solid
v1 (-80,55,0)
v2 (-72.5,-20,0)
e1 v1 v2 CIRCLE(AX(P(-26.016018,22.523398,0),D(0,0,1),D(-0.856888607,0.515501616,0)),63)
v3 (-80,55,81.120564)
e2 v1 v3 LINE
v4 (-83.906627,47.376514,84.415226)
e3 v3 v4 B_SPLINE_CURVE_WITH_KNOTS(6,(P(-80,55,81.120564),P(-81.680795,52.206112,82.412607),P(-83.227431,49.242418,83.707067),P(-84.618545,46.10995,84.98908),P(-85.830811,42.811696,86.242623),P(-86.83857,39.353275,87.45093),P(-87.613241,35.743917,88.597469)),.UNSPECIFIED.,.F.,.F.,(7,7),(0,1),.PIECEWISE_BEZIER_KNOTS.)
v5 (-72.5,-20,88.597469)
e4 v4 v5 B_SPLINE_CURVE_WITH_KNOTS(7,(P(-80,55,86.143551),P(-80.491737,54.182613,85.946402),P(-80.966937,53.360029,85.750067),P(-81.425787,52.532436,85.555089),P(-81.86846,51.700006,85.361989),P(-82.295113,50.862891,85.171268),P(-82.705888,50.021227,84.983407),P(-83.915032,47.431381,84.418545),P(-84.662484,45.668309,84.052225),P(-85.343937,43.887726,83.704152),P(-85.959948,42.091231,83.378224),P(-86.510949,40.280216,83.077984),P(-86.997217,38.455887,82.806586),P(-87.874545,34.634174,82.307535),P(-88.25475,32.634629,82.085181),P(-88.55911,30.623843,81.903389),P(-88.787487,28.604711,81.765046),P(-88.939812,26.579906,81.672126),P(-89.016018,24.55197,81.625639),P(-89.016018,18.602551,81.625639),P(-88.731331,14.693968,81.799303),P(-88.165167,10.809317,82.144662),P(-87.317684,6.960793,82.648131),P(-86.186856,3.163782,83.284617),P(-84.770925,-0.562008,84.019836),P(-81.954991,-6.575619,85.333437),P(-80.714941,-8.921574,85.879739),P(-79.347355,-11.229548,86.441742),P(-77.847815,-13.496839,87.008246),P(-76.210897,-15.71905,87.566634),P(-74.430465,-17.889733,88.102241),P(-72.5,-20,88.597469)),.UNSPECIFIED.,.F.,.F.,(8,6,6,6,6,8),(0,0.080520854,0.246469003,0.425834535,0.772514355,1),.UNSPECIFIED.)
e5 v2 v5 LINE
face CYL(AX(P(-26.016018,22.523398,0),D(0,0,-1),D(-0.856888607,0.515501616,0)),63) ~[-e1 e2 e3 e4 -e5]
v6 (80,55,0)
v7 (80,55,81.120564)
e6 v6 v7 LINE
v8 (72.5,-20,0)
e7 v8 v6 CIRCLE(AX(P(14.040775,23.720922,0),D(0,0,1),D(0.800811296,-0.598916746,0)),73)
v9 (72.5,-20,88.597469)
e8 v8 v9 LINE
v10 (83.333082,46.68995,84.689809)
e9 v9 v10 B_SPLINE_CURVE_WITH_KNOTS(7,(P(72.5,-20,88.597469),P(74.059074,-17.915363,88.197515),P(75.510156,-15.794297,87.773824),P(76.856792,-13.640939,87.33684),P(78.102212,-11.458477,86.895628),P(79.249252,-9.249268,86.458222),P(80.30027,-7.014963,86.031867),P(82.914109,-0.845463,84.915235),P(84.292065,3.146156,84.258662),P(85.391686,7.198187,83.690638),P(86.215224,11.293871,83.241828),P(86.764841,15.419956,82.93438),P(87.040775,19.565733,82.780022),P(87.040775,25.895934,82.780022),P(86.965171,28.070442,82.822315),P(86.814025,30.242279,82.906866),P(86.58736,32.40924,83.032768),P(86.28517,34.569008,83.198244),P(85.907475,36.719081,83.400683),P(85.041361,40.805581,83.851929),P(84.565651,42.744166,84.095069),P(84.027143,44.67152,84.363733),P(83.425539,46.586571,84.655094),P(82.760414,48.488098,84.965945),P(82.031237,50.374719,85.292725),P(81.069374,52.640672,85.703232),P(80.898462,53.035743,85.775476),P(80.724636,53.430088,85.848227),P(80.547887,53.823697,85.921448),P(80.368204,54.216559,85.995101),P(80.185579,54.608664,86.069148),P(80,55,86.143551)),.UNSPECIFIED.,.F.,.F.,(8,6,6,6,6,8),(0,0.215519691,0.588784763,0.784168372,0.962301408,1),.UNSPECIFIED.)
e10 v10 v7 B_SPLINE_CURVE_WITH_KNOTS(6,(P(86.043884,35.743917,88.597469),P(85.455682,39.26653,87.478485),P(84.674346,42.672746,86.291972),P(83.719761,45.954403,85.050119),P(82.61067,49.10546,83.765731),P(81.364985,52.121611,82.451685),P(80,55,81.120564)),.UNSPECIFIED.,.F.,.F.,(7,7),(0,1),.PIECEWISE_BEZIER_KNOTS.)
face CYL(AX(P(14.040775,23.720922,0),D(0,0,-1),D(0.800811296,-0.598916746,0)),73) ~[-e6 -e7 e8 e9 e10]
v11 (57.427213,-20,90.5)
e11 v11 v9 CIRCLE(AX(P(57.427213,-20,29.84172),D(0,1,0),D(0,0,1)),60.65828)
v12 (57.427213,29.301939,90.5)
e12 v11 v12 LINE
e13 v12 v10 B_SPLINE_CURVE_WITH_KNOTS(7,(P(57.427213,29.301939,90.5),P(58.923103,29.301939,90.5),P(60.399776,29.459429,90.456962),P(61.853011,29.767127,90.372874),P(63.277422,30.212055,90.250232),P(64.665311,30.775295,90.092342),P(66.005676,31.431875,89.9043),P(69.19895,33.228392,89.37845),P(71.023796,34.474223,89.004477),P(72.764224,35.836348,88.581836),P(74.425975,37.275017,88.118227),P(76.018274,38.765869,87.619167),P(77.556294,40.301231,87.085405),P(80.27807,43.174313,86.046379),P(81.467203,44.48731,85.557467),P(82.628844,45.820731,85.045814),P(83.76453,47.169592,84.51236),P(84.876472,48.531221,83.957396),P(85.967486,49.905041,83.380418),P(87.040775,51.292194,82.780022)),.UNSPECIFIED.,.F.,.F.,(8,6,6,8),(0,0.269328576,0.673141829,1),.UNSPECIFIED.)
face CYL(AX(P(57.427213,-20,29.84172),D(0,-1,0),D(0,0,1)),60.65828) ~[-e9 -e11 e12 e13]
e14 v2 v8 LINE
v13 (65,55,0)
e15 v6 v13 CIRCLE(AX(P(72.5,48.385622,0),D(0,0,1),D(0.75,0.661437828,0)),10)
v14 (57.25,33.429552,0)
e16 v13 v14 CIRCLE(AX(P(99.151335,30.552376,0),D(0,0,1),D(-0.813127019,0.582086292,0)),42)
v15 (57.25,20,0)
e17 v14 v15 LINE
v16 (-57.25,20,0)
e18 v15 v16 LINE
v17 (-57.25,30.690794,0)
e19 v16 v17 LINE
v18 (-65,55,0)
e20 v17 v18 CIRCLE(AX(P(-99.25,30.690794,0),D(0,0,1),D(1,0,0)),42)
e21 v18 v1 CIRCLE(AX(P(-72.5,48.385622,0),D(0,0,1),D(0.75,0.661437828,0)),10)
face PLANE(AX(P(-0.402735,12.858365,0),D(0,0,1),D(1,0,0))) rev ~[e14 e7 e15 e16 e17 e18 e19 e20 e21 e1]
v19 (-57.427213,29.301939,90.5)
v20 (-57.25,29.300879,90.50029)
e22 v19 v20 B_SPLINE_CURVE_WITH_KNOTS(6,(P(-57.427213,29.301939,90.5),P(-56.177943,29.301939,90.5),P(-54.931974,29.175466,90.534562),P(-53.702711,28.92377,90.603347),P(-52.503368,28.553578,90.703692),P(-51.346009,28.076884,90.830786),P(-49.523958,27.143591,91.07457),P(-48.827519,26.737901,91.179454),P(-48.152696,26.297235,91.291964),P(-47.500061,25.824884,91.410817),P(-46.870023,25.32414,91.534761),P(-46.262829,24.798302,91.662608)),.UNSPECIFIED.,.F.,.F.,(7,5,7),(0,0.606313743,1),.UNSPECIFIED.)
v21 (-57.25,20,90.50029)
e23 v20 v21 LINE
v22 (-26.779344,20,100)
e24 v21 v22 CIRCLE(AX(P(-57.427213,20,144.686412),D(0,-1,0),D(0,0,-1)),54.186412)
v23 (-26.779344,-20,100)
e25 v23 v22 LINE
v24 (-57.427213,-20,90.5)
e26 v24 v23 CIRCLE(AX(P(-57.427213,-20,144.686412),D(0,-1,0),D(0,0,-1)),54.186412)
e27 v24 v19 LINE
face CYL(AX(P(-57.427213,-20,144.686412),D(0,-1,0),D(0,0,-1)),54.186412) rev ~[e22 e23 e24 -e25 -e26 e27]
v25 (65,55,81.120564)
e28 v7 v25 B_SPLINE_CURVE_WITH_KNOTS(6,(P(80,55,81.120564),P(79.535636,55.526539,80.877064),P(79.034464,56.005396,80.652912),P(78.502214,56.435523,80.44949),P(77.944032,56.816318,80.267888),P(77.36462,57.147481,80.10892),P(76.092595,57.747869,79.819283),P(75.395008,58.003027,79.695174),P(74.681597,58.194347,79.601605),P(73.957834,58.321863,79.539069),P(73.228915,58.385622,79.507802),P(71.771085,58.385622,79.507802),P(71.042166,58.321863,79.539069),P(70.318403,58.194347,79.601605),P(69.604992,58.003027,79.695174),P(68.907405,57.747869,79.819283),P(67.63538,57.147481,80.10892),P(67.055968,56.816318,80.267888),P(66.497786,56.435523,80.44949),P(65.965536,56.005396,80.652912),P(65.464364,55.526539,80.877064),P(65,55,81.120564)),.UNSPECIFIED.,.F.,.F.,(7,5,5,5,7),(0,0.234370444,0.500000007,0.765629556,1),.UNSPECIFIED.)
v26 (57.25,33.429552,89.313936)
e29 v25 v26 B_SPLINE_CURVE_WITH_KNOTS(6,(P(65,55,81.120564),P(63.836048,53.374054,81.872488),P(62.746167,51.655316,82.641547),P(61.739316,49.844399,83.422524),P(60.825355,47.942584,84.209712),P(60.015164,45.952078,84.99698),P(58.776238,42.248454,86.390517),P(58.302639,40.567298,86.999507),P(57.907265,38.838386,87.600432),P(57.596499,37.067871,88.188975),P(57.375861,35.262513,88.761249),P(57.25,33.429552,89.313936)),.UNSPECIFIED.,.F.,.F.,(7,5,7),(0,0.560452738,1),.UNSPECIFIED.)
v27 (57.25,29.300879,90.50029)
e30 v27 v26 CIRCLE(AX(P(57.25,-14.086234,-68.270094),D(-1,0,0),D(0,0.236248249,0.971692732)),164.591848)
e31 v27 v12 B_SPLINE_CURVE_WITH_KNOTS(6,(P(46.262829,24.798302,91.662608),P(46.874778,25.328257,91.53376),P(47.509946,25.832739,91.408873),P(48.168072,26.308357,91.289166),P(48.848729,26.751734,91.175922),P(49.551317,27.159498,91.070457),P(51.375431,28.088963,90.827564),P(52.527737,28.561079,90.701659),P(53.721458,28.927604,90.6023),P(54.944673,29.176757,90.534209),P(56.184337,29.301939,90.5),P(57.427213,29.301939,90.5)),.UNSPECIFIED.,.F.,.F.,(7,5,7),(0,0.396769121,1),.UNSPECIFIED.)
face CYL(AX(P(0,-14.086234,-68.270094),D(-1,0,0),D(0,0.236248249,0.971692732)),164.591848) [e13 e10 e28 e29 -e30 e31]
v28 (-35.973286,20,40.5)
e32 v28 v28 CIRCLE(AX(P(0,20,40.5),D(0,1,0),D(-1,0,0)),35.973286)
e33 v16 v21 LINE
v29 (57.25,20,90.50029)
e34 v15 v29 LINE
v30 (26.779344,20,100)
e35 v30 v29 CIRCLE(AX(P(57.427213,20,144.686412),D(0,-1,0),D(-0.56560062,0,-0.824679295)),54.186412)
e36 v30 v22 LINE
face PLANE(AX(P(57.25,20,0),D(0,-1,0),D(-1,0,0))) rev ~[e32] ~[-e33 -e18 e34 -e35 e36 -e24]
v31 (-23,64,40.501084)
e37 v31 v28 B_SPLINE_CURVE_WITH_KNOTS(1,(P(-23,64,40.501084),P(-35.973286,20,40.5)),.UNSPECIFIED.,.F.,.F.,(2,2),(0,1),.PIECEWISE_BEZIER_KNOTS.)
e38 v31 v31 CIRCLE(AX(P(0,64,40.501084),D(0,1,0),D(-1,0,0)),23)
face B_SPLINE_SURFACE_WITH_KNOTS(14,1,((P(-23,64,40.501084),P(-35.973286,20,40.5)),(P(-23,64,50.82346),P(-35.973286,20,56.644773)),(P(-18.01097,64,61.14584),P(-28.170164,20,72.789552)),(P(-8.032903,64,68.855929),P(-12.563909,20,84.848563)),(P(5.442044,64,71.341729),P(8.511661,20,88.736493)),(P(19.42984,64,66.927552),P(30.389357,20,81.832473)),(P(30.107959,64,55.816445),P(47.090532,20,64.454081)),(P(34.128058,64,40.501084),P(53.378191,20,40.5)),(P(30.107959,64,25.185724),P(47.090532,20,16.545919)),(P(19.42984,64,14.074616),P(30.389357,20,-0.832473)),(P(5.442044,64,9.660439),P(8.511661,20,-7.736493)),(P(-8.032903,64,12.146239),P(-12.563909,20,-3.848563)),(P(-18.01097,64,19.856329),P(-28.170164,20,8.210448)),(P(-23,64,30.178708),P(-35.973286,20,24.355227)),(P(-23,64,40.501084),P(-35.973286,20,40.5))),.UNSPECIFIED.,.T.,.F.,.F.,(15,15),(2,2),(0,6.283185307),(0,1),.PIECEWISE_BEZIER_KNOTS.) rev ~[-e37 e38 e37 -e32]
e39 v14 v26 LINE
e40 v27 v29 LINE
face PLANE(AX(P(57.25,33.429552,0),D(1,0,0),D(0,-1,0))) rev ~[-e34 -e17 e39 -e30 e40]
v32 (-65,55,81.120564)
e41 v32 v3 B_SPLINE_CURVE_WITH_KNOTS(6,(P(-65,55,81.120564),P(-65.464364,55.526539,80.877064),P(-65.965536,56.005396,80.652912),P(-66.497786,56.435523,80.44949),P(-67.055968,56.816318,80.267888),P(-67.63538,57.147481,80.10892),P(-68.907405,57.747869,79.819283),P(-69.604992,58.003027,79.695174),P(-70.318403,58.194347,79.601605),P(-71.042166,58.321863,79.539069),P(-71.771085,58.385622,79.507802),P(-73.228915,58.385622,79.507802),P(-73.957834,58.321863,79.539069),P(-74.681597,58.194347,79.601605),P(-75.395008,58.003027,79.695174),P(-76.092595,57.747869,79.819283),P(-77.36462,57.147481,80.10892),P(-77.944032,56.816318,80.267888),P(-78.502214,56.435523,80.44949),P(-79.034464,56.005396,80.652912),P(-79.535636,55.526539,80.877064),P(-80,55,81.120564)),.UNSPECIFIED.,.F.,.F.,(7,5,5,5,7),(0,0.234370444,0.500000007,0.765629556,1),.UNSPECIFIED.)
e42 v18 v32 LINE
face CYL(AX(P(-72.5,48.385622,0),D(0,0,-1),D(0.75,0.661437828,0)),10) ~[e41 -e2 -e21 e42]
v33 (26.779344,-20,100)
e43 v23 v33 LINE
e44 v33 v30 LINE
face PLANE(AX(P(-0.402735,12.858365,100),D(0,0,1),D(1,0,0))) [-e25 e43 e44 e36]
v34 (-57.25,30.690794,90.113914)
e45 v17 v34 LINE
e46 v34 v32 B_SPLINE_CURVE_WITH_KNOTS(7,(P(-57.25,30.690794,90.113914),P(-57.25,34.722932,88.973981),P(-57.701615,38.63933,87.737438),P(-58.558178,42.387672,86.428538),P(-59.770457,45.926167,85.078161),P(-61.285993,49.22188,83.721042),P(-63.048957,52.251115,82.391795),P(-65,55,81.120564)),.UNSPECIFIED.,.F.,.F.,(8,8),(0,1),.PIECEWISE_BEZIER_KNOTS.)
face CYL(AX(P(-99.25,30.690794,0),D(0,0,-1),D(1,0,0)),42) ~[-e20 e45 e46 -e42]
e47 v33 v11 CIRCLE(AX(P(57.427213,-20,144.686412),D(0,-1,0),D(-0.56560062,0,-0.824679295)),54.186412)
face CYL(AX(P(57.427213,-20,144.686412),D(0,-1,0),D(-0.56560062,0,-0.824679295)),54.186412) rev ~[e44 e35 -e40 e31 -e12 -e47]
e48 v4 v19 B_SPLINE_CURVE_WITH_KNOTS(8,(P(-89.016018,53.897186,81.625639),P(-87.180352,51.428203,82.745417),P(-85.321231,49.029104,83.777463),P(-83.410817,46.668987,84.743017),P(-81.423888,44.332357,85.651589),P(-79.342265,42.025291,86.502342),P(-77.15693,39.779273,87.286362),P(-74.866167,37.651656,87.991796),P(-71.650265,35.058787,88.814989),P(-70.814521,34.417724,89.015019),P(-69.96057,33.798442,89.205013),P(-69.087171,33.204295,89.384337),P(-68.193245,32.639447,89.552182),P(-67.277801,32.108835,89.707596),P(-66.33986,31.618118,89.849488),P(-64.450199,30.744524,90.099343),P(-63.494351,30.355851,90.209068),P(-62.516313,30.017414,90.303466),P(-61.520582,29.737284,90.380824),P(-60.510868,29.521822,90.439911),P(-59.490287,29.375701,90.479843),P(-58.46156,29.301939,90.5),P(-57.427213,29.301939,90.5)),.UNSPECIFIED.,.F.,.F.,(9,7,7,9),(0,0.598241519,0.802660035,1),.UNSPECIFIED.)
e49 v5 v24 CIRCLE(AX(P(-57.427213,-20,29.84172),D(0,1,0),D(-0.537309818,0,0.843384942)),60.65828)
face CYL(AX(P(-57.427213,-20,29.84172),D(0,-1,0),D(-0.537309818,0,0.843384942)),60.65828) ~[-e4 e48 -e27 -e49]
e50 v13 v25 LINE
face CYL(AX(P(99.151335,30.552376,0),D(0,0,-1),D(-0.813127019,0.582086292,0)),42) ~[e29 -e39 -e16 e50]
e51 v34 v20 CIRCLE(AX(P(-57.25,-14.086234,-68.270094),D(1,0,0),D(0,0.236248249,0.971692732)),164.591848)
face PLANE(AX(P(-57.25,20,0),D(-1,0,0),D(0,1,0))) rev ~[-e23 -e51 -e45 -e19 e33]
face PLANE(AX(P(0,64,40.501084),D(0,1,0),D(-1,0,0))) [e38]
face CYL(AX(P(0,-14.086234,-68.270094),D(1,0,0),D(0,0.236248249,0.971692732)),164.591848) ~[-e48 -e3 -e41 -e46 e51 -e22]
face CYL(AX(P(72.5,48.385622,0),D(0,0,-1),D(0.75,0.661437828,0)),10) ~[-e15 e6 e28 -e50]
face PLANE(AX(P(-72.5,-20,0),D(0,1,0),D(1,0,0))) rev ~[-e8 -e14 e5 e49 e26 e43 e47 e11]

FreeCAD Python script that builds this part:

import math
import FreeCAD as App
import Part
import Sketcher

doc = App.newDocument("Part")
body = doc.addObject("PartDesign::Body", "Body")

# Sketch on XY plane
sketch1 = body.newObject("Sketcher::SketchObject", "Sketch")
sketch1.AttachmentSupport = (doc.getObject("XY_Plane"), [""])
sketch1.MapMode = "FlatFace"
sketch1.addGeometry([
    Part.LineSegment(App.Vector(-72, -20, 0), App.Vector(72, -20, 0)),  # 0
    Part.ArcOfCircle(Part.Circle(App.Vector(14, 24, 0), App.Vector(0, 0, 1), 73), math.radians(-37), math.radians(25)),  # 1
    Part.ArcOfCircle(Part.Circle(App.Vector(72, 48, 0), App.Vector(0, 0, 1), 10), math.radians(41), math.radians(139)),  # 2
    Part.ArcOfCircle(Part.Circle(App.Vector(99, 31, 0), App.Vector(0, 0, 1), 42), math.radians(144), math.radians(176)),  # 3
    Part.LineSegment(App.Vector(57, 33, 0), App.Vector(57, 20, 0)),  # 4
    Part.LineSegment(App.Vector(57, 20, 0), App.Vector(-57, 20, 0)),  # 5
    Part.LineSegment(App.Vector(-57, 20, 0), App.Vector(-57, 31, 0)),  # 6
    Part.ArcOfCircle(Part.Circle(App.Vector(-99, 31, 0), App.Vector(0, 0, 1), 42), math.radians(0), math.radians(35)),  # 7
    Part.ArcOfCircle(Part.Circle(App.Vector(-72, 48, 0), App.Vector(0, 0, 1), 10), math.radians(41), math.radians(139)),  # 8
    Part.ArcOfCircle(Part.Circle(App.Vector(-26, 23, 0), App.Vector(0, 0, 1), 63), math.radians(149), math.radians(222)),  # 9
], False)
sketch1.addConstraint([
    Sketcher.Constraint("Coincident", 0, 2, 1, 1),
    Sketcher.Constraint("Coincident", 1, 2, 2, 1),
    Sketcher.Constraint("Coincident", 2, 2, 3, 1),
    Sketcher.Constraint("Coincident", 3, 2, 4, 1),
    Sketcher.Constraint("Coincident", 4, 2, 5, 1),
    Sketcher.Constraint("Coincident", 5, 2, 6, 1),
    Sketcher.Constraint("Tangent", 6, 2, 7, 1),
    Sketcher.Constraint("Coincident", 7, 2, 8, 1),
    Sketcher.Constraint("Coincident", 8, 2, 9, 1),
    Sketcher.Constraint("Coincident", 9, 2, 0, 1),
    Sketcher.Constraint("Horizontal", 0),
    Sketcher.Constraint("Vertical", 4),
    Sketcher.Constraint("Horizontal", 5),
    Sketcher.Constraint("Vertical", 6),
    Sketcher.Constraint("Equal", 3, 7),
    Sketcher.Constraint("Equal", 2, 8),
    Sketcher.Constraint("Symmetric", 2, 3, 8, 3, -2),
    Sketcher.Constraint("Horizontal", 1, 2, 2, 2),
    Sketcher.Constraint("Horizontal", 2, 2, 7, 2),
    Sketcher.Constraint("Horizontal", 7, 2, 8, 2),
    Sketcher.Constraint("Vertical", 2, 3, 0, 2),
    Sketcher.Constraint("Vertical", 8, 3, 9, 2),
    Sketcher.Constraint("Radius", 1, 73.0),
    Sketcher.Constraint("Radius", 2, 10.0),
    Sketcher.Constraint("Radius", 3, 42.0),
    Sketcher.Constraint("Radius", 9, 63.0),
    Sketcher.Constraint("DistanceX", 0, 1, 0, 2, 145.0),
    Sketcher.Constraint("DistanceX", 5, 2, 5, 1, 114.5),
    Sketcher.Constraint("DistanceY", 0, 2, -1, 1, 20.0),
    Sketcher.Constraint("DistanceX", -1, 1, 1, 2, 80.0),
    Sketcher.Constraint("DistanceY", -1, 1, 1, 2, 55.0),
    Sketcher.Constraint("DistanceY", -1, 1, 4, 2, 20.0),
    Sketcher.Constraint("DistanceX", 7, 3, -1, 1, 99.25),
    Sketcher.Constraint("DistanceY", 4, 2, 4, 1, 13.429552),
])
pad1 = body.newObject("PartDesign::Pad", "Pad")
pad1.Profile = sketch1
pad1.Length = 100

# Sketch on XZ plane
sketch2 = body.newObject("Sketcher::SketchObject", "Sketch001")
sketch2.AttachmentSupport = (doc.getObject("XZ_Plane"), [""])
sketch2.MapMode = "FlatFace"
sketch2.AttachmentOffset = App.Placement(App.Vector(0, 0, 20), App.Rotation())
sketch2.addGeometry([
    Part.ArcOfCircle(Part.Circle(App.Vector(-57, 145, 0), App.Vector(0, 0, 1), 54), math.radians(-90), math.radians(-56)),  # 0
    Part.LineSegment(App.Vector(-27, 100, 0), App.Vector(-94, 100, 0)),  # 1
    Part.LineSegment(App.Vector(-94, 100, 0), App.Vector(-90, 81, 0)),  # 2
    Part.ArcOfCircle(Part.Circle(App.Vector(-57, 30, 0), App.Vector(0, 0, 1), 61), math.radians(90), math.radians(123)),  # 3
    Part.LineSegment(App.Vector(90, 100, 0), App.Vector(27, 100, 0)),  # 4
    Part.ArcOfCircle(Part.Circle(App.Vector(57, 145, 0), App.Vector(0, 0, 1), 54), math.radians(-124), math.radians(-90)),  # 5
    Part.ArcOfCircle(Part.Circle(App.Vector(57, 30, 0), App.Vector(0, 0, 1), 61), math.radians(57), math.radians(90)),  # 6
    Part.LineSegment(App.Vector(90, 81, 0), App.Vector(90, 100, 0)),  # 7
], False)
sketch2.addConstraint([
    Sketcher.Constraint("Coincident", 0, 2, 1, 1),
    Sketcher.Constraint("Coincident", 1, 2, 2, 1),
    Sketcher.Constraint("Coincident", 2, 2, 3, 2),
    Sketcher.Constraint("Tangent", 3, 1, 0, 1),
    Sketcher.Constraint("Coincident", 4, 2, 5, 1),
    Sketcher.Constraint("Tangent", 5, 2, 6, 2),
    Sketcher.Constraint("Coincident", 6, 1, 7, 1),
    Sketcher.Constraint("Coincident", 7, 2, 4, 1),
    Sketcher.Constraint("Horizontal", 1),
    Sketcher.Constraint("Horizontal", 4),
    Sketcher.Constraint("Equal", 0, 5),
    Sketcher.Constraint("Equal", 3, 6),
    Sketcher.Constraint("Symmetric", 0, 3, 5, 3, -2),
    Sketcher.Constraint("Symmetric", 2, 2, 6, 1, -2),
    Sketcher.Constraint("Horizontal", 1, 2, 4, 2),
    Sketcher.Constraint("Vertical", 0, 3, 3, 3),
    Sketcher.Constraint("DistanceY", -1, 1, 0, 2, 100.0),
    Sketcher.Constraint("DistanceY", -1, 1, 2, 2, 81.0),
    Sketcher.Constraint("DistanceY", -1, 1, 3, 1, 90.5),
    Sketcher.Constraint("Radius", 3, 60.65828),
    Sketcher.Constraint("Radius", 0, 54.186412),
    Sketcher.Constraint("DistanceX", 4, 2, 4, 1, 63.665422),
    Sketcher.Constraint("DistanceX", 2, 2, -1, 1, 90.019502),
    Sketcher.Constraint("DistanceX", 1, 2, 1, 1, 67.295024),
])
pocket1 = body.newObject("PartDesign::Pocket", "Pocket")
pocket1.Profile = sketch2
pocket1.Length = 98.6

# Sketch on YZ plane
sketch3 = body.newObject("Sketcher::SketchObject", "Sketch002")
sketch3.AttachmentSupport = (doc.getObject("YZ_Plane"), [""])
sketch3.MapMode = "FlatFace"
sketch3.addGeometry([
    Part.ArcOfCircle(Part.Circle(App.Vector(-14, -68, 0), App.Vector(0, 0, 1), 165), math.radians(60.58), math.radians(76.33)),
    Part.LineSegment(App.Vector(67, 75, 0), App.Vector(67, 99, 0)),
    Part.LineSegment(App.Vector(67, 99, 0), App.Vector(25, 99, 0)),
    Part.LineSegment(App.Vector(25, 99, 0), App.Vector(25, 92, 0)),
], False)
sketch3.addConstraint([
    Sketcher.Constraint("Coincident", 0, 1, 1, 1),
    Sketcher.Constraint("Coincident", 1, 2, 2, 1),
    Sketcher.Constraint("Coincident", 2, 2, 3, 1),
    Sketcher.Constraint("Coincident", 3, 2, 0, 2),
    Sketcher.Constraint("Vertical", 1),
    Sketcher.Constraint("Horizontal", 2),
    Sketcher.Constraint("Vertical", 3),
    Sketcher.Constraint("Radius", 0, 164.591848),
    Sketcher.Constraint("DistanceX", 2, 2, 2, 1, 41.956091),
    Sketcher.Constraint("DistanceX", -1, 1, 2, 2, 24.798302),
    Sketcher.Constraint("DistanceY", 1, 1, 1, 2, 23.600295),
    Sketcher.Constraint("DistanceY", 3, 2, 3, 1, 7.038683),
    Sketcher.Constraint("DistanceY", -1, 1, 1, 2, 98.701291),
])
pocket2 = body.newObject("PartDesign::Pocket", "Pocket001")
pocket2.Profile = sketch3
pocket2.Type = "ThroughAll"
pocket2.Midplane = True

# Sketch on XZ plane
sketch4 = body.newObject("Sketcher::SketchObject", "Sketch003")
sketch4.AttachmentSupport = (doc.getObject("XZ_Plane"), [""])
sketch4.MapMode = "FlatFace"
sketch4.AttachmentOffset = App.Placement(App.Vector(0, 0, -20), App.Rotation())
sketch4.addGeometry(Part.Circle(App.Vector(0, 40.5, 0), App.Vector(0, 0, 1), 1.6), False)
sketch4.addConstraint([
    Sketcher.Constraint("PointOnObject", 0, 3, -2),
    Sketcher.Constraint("Diameter", 0, 3.177766),
    Sketcher.Constraint("DistanceY", -1, 1, 0, 3, 40.501084),
])
pad2 = body.newObject("PartDesign::Pad", "Pad001")
pad2.Profile = sketch4
pad2.Length = 43
pad2.Reversed = True

# Sketch on XZ plane
sketch5 = body.newObject("Sketcher::SketchObject", "Sketch004")
sketch5.AttachmentSupport = (doc.getObject("XZ_Plane"), [""])
sketch5.MapMode = "FlatFace"
sketch5.AttachmentOffset = App.Placement(App.Vector(0, 0, -63), App.Rotation())
sketch5.addGeometry(Part.Circle(App.Vector(0, 41, 0), App.Vector(0, 0, 1), 23), False)
sketch5.addConstraint([
    Sketcher.Constraint("PointOnObject", 0, 3, -2),
    Sketcher.Constraint("Diameter", 0, 46.0),
    Sketcher.Constraint("DistanceY", -1, 1, 0, 3, 40.501084),
])
pad3 = body.newObject("PartDesign::Pad", "Pad002")
pad3.Profile = sketch5
pad3.Length = 1
pad3.Reversed = True

# Sketch on XZ plane
sketch6 = body.newObject("Sketcher::SketchObject", "Sketch005")
sketch6.AttachmentSupport = (doc.getObject("XZ_Plane"), [""])
sketch6.MapMode = "FlatFace"
sketch6.AttachmentOffset = App.Placement(App.Vector(0, 0, -64), App.Rotation())
sketch6.addGeometry(Part.Circle(App.Vector(0, 41, 0), App.Vector(0, 0, 1), 23), False)
sketch6.addConstraint([
    Sketcher.Constraint("PointOnObject", 0, 3, -2),
    Sketcher.Constraint("Diameter", 0, 46.0),
    Sketcher.Constraint("DistanceY", -1, 1, 0, 3, 40.501084),
])

# Sketch on XZ plane
sketch7 = body.newObject("Sketcher::SketchObject", "Sketch006")
sketch7.AttachmentSupport = (doc.getObject("XZ_Plane"), [""])
sketch7.MapMode = "FlatFace"
sketch7.AttachmentOffset = App.Placement(App.Vector(0, 0, -20), App.Rotation())
sketch7.addGeometry(Part.Circle(App.Vector(0, 40, 0), App.Vector(0, 0, 1), 36), False)
sketch7.addConstraint([
    Sketcher.Constraint("PointOnObject", 0, 3, -2),
    Sketcher.Constraint("DistanceY", -1, 1, 0, 3, 40.5),
    Sketcher.Constraint("Diameter", 0, 71.946572),
])

additiveloft = body.newObject("PartDesign::AdditiveLoft", "AdditiveLoft")
additiveloft.Profile = sketch6
additiveloft.Sections = [sketch7]

doc.recompute()
